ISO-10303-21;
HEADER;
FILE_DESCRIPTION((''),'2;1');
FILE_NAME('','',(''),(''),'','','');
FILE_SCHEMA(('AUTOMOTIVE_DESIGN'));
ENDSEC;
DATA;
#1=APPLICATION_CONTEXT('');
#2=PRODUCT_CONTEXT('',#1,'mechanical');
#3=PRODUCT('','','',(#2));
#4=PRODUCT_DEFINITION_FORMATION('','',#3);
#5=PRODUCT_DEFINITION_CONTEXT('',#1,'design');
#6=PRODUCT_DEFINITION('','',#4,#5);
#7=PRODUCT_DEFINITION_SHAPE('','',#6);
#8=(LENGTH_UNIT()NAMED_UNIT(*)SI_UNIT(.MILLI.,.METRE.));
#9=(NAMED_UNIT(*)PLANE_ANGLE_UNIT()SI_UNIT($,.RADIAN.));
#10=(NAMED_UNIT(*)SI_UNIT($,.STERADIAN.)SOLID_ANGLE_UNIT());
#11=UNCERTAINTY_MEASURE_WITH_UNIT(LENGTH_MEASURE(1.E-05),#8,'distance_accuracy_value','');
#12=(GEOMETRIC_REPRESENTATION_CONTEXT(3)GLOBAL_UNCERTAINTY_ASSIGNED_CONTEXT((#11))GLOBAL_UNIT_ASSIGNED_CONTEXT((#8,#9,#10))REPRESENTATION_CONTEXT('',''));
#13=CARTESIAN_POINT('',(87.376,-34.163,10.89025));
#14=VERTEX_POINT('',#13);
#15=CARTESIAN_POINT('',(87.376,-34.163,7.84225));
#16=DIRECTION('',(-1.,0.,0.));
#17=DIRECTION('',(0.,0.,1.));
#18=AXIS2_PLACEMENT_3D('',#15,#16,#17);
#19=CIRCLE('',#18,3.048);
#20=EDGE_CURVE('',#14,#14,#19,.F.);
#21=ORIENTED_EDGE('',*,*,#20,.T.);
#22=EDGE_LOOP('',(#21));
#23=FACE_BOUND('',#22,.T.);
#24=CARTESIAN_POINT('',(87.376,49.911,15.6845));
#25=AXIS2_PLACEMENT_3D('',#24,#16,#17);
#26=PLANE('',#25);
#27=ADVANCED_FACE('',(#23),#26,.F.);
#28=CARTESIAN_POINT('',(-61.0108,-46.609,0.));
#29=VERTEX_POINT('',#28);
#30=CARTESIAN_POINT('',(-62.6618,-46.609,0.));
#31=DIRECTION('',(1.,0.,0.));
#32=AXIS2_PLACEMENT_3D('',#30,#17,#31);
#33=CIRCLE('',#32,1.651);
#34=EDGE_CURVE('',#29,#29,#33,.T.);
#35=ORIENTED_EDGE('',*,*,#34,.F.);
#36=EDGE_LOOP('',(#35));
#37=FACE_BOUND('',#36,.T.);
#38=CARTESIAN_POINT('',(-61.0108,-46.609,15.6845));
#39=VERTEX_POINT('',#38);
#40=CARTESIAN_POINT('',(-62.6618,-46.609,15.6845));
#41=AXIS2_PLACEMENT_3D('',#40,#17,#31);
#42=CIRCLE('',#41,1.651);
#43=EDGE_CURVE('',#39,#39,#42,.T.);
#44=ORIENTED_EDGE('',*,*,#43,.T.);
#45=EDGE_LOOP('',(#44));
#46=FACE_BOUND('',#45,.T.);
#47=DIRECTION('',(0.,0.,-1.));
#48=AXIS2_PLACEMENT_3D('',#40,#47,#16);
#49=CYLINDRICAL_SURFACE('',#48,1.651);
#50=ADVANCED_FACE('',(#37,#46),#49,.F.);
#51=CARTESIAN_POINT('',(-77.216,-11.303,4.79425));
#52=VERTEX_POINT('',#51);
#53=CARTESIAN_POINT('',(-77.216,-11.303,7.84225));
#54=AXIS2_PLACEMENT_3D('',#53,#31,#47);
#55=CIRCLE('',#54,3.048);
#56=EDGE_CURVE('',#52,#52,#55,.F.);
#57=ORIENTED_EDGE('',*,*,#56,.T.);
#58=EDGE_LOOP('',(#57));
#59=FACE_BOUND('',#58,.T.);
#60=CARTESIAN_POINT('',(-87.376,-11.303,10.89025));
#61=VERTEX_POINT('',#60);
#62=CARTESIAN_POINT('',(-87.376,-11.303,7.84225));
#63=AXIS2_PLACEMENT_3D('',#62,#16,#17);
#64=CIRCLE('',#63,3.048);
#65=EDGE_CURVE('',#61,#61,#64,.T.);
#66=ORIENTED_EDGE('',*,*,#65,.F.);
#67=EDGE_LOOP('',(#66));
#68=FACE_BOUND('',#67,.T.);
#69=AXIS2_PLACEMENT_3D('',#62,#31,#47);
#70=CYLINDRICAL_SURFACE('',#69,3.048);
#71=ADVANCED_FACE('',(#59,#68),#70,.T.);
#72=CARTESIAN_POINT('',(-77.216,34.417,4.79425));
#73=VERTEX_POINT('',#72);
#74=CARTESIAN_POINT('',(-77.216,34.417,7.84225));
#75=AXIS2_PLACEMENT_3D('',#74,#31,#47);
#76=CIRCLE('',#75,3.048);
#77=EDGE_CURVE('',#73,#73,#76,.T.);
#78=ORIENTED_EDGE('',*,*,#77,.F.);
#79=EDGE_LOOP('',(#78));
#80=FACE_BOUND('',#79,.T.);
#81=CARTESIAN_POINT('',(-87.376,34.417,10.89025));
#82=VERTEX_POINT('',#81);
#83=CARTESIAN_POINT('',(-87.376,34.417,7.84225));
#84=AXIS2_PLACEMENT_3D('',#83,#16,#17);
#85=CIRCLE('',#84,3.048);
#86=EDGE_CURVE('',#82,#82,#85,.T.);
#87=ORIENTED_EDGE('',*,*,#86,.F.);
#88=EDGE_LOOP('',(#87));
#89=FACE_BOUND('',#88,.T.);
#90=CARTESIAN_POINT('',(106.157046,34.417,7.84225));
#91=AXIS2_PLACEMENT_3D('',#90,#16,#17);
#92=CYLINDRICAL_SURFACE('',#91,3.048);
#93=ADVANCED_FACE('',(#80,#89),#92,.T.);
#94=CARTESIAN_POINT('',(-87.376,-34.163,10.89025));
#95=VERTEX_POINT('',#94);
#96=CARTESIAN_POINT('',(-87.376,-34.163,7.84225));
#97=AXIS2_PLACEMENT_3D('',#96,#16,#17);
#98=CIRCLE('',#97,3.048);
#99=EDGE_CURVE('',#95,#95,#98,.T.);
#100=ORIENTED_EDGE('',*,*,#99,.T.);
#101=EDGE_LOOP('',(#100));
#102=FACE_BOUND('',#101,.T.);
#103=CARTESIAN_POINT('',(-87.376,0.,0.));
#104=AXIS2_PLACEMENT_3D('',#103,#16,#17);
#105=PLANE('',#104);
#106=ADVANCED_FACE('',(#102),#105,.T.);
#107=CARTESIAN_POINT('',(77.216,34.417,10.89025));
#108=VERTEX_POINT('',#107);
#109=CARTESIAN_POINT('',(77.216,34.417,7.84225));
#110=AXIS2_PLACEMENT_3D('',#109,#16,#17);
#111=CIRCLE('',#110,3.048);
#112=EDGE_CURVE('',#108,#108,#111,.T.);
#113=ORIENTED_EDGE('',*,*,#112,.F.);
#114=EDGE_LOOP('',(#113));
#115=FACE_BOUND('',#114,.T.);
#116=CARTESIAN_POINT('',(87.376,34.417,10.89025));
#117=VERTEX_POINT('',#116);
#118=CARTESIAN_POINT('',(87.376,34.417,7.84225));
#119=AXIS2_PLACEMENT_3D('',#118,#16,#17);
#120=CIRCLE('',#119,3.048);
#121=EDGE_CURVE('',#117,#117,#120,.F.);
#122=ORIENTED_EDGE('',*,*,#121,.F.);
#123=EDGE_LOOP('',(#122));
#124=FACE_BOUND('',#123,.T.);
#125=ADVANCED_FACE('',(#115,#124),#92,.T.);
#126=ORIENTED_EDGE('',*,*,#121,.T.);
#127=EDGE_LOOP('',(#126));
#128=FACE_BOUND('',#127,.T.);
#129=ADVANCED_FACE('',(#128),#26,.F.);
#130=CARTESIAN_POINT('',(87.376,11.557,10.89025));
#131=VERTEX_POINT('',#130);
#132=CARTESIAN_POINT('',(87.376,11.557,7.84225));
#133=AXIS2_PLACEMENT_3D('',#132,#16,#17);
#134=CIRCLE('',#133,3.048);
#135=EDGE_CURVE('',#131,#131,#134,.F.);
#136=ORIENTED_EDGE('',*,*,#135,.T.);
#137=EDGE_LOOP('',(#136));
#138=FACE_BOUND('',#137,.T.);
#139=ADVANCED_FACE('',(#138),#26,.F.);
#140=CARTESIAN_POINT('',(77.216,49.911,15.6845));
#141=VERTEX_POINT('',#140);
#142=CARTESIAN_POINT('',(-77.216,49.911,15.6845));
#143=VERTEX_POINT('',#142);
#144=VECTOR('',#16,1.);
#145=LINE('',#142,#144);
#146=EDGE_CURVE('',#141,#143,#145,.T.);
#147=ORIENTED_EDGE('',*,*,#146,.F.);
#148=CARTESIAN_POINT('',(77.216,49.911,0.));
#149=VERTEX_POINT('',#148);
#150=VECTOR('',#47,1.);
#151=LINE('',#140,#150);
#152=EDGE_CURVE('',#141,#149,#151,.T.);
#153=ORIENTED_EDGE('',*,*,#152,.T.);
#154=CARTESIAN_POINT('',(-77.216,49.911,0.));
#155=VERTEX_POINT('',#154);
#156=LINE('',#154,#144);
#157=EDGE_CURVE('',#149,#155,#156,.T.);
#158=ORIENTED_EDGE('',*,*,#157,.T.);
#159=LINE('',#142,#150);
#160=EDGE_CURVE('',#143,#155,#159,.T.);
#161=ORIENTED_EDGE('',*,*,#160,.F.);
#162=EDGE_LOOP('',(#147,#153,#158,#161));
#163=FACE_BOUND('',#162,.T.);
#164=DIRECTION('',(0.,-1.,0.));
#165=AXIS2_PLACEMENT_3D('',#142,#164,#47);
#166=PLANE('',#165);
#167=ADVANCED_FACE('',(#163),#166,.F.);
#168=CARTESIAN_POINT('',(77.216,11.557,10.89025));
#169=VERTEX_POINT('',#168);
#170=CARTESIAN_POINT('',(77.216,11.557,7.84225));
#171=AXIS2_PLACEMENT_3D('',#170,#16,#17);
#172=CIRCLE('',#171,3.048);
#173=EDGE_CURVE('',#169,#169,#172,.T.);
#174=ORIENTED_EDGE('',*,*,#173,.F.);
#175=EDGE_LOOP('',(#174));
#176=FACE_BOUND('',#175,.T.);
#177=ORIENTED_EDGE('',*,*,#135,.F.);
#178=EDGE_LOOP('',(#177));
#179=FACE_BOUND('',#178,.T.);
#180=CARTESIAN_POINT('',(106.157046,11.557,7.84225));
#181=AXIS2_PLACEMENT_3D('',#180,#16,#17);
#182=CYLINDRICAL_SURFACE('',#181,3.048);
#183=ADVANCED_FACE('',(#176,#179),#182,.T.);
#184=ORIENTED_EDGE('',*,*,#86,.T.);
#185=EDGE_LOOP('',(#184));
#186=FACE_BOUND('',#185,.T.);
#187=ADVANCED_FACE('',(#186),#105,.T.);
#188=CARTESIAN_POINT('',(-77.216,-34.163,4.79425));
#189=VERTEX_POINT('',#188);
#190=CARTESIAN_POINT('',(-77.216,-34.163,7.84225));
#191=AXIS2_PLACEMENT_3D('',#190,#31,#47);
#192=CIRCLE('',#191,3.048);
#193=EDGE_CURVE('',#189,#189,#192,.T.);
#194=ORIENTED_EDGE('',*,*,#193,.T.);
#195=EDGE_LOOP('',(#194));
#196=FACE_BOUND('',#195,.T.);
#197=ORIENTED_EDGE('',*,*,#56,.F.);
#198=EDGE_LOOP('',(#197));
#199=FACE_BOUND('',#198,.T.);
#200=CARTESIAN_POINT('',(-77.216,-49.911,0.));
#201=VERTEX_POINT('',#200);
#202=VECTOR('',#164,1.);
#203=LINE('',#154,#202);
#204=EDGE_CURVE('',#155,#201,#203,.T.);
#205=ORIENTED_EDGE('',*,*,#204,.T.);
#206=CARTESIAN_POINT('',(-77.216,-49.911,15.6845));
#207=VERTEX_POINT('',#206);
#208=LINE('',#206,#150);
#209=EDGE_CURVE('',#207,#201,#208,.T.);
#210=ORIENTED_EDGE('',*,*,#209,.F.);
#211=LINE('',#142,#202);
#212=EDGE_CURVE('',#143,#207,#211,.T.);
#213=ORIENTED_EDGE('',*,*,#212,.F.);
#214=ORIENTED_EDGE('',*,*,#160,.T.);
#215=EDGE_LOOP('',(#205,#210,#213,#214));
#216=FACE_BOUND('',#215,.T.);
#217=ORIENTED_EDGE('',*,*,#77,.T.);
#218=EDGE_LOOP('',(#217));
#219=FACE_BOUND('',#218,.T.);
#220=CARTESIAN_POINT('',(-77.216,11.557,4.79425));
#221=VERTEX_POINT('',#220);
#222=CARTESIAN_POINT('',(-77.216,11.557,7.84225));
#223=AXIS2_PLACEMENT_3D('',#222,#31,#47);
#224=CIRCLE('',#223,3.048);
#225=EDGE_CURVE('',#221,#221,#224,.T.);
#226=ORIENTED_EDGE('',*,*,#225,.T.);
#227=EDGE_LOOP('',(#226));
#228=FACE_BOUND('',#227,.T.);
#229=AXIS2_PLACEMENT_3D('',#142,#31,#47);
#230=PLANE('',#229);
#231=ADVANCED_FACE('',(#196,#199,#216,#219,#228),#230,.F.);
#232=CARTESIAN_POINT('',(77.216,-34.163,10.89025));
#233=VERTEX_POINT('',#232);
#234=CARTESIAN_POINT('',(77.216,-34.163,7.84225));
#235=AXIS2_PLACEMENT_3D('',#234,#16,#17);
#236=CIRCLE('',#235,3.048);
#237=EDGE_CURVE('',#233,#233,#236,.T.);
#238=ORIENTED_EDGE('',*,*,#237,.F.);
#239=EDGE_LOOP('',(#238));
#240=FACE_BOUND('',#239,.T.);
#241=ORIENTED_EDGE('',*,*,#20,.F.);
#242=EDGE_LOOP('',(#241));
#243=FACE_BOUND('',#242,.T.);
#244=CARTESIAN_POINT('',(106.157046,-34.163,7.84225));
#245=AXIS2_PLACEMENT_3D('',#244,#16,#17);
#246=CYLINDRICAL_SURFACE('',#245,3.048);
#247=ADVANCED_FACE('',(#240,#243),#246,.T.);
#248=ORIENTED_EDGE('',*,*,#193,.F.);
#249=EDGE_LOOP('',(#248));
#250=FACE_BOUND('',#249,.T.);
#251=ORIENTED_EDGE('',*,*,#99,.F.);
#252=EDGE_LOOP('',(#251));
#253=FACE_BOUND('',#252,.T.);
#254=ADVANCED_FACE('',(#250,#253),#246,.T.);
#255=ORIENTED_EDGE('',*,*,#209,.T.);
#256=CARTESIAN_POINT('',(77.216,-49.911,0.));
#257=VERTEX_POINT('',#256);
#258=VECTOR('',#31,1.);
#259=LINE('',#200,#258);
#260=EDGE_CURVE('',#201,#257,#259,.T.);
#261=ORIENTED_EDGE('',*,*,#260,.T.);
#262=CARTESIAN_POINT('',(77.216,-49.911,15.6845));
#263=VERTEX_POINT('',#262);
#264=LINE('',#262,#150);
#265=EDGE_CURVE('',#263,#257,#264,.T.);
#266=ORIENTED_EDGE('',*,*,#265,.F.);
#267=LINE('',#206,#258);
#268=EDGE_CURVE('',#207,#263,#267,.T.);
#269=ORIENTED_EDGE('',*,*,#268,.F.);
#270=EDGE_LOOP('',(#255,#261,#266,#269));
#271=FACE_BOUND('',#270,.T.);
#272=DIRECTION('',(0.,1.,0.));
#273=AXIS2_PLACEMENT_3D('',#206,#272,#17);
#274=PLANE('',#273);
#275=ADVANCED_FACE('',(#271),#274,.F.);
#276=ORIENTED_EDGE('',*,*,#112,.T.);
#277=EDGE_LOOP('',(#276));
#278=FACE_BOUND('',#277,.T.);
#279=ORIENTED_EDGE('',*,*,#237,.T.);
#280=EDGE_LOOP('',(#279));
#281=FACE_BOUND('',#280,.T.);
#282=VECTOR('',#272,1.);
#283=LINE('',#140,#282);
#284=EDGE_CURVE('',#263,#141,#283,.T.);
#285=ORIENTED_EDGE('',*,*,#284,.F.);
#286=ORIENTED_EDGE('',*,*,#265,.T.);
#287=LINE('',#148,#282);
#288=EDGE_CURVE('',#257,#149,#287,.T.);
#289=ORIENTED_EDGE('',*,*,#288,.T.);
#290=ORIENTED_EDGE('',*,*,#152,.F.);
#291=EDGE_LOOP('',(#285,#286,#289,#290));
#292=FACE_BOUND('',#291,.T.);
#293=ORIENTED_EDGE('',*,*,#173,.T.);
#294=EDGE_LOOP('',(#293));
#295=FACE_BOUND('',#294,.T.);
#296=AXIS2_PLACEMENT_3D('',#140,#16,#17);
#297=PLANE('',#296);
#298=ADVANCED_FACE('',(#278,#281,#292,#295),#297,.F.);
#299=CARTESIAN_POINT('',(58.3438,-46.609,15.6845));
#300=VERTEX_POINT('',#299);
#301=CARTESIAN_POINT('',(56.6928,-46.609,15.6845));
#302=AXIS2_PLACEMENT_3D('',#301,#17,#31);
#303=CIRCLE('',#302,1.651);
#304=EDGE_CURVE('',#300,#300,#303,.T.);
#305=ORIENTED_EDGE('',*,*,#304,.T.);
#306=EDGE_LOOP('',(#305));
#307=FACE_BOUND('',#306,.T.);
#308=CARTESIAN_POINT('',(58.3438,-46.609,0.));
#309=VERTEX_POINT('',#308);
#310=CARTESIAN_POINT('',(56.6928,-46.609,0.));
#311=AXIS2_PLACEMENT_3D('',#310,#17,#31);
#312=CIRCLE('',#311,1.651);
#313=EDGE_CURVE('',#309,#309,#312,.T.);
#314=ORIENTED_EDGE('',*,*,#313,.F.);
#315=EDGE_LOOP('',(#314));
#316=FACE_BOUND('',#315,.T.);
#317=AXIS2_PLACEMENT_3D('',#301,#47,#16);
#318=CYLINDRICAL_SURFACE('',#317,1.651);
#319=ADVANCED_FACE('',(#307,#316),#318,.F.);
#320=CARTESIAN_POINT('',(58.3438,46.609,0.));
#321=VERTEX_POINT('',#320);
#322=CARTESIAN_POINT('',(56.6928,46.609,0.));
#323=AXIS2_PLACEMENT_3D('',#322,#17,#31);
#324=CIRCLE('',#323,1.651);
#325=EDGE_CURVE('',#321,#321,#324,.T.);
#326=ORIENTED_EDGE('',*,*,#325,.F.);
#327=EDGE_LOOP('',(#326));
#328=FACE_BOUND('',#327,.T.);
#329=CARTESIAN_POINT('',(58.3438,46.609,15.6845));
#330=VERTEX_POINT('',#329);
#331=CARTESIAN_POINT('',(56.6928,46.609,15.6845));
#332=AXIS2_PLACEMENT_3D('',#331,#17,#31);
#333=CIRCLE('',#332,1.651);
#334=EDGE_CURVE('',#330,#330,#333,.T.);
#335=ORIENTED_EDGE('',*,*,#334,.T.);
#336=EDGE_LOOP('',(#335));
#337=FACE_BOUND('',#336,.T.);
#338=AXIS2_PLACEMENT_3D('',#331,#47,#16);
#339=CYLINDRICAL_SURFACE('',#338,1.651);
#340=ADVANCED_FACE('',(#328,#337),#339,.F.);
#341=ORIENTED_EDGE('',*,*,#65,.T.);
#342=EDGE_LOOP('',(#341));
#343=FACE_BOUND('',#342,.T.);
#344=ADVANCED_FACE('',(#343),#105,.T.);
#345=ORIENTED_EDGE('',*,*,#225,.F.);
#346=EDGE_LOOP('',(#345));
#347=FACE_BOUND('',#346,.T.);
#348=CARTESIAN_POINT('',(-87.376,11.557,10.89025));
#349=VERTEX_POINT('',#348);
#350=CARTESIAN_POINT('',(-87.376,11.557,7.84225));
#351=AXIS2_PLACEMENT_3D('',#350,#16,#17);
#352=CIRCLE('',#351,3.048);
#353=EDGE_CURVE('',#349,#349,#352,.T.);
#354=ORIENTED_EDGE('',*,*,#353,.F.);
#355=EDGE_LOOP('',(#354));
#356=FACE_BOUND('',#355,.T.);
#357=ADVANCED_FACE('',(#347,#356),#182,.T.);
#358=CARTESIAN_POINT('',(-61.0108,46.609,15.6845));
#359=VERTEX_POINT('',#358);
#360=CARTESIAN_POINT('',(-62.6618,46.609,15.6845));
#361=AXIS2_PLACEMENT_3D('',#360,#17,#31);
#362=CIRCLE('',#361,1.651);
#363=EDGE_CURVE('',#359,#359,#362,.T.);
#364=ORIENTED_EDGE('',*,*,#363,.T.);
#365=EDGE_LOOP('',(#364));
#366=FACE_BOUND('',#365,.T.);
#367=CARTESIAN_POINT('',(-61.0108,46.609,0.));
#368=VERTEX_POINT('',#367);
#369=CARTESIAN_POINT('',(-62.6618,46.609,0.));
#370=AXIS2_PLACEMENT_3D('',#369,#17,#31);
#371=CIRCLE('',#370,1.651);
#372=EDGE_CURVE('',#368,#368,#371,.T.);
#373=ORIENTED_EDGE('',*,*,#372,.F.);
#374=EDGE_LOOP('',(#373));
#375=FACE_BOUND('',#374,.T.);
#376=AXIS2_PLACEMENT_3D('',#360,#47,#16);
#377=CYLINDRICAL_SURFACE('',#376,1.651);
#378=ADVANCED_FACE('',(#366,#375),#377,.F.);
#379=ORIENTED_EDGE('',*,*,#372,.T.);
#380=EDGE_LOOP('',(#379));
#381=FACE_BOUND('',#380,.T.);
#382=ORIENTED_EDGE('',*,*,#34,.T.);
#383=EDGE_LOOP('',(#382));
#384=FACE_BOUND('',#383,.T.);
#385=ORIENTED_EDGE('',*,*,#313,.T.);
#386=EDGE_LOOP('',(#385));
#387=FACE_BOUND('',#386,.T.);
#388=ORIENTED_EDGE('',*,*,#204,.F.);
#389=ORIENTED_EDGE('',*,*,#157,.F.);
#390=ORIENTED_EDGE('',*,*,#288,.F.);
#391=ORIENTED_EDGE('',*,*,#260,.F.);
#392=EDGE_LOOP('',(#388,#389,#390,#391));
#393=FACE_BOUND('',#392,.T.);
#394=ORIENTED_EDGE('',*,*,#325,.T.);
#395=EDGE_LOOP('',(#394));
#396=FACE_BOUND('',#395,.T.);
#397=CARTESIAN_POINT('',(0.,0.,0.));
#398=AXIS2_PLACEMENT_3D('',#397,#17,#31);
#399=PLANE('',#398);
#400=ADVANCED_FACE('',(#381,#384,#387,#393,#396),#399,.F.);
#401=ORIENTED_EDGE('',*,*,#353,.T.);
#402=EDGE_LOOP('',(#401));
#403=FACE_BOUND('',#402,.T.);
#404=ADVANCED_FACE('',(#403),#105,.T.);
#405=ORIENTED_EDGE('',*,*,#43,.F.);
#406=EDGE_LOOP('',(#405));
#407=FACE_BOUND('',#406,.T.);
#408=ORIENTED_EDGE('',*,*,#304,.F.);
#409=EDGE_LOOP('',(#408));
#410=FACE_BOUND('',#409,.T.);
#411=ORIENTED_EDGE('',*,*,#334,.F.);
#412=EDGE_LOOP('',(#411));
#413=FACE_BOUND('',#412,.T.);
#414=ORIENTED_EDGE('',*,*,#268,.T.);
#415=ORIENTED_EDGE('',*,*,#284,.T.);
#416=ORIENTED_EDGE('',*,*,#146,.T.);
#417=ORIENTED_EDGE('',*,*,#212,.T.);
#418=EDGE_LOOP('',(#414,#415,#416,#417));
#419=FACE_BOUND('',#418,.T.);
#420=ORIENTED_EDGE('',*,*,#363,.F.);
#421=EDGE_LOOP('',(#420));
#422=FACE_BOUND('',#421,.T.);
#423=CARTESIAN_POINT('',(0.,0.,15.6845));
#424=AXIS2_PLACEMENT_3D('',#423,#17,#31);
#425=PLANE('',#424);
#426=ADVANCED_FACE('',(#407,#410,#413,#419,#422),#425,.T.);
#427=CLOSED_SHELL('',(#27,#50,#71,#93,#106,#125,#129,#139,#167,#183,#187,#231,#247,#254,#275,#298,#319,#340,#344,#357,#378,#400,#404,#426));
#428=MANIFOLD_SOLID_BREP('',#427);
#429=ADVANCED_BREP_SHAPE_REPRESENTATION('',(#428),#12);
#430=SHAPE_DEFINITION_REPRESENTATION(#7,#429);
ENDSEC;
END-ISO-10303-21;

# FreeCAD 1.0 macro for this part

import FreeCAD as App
import Part
import Sketcher
from FreeCAD import Vector
Q = App.Units.Quantity

doc = App.newDocument("Part")
body = doc.addObject("PartDesign::Body", "Body")

sketch1 = body.newObject("Sketcher::SketchObject", "Sketch")
sketch1.AttachmentSupport = (doc.getObject("XY_Plane"), [""])
sketch1.MapMode = "FlatFace"
sketch1.addGeometry([
    Part.LineSegment(Vector(-77.216, 49.911, 0), Vector(-77.216, -49.911, 0)),
    Part.LineSegment(Vector(-77.216, -49.911, 0), Vector(77.216, -49.911, 0)),
    Part.LineSegment(Vector(77.216, -49.911, 0), Vector(77.216, 49.911, 0)),
    Part.LineSegment(Vector(77.216, 49.911, 0), Vector(-77.216, 49.911, 0)),
], False)
sketch1.addConstraint([
    Sketcher.Constraint("Coincident", 0, 2, 1, 1),
    Sketcher.Constraint("Coincident", 1, 2, 2, 1),
    Sketcher.Constraint("Coincident", 2, 2, 3, 1),
    Sketcher.Constraint("Coincident", 3, 2, 0, 1),
    Sketcher.Constraint("Vertical", 0),
    Sketcher.Constraint("Horizontal", 1),
    Sketcher.Constraint("Vertical", 2),
    Sketcher.Constraint("Horizontal", 3),
    Sketcher.Constraint("Symmetric", 0, 2, 2, 2, -1, 1),
    Sketcher.Constraint("DistanceX", 1, 1, 1, 2, Q("6.08 in")),
    Sketcher.Constraint("DistanceY", 0, 2, 0, 1, Q("3.93 in")),
])
pad1 = body.newObject("PartDesign::Pad", "Pad")
pad1.Profile = sketch1
pad1.Length = Q("0.6175 in")

sketch2 = body.newObject("Sketcher::SketchObject", "Sketch001")
sketch2.AttachmentSupport = (doc.getObject("YZ_Plane"), [""])
sketch2.MapMode = "FlatFace"
sketch2.AttachmentOffset = App.Placement(Vector(0, 0, -3.04 * 25.4), App.Rotation())
sketch2.addGeometry([
    Part.Circle(Vector(34.417, 7.84225, 0), Vector(0, 0, 1), 3.048),
    Part.Circle(Vector(11.557, 7.84225, 0), Vector(0, 0, 1), 3.048),
    Part.Circle(Vector(-34.163, 7.84225, 0), Vector(0, 0, 1), 3.048),
], False)
sketch2.addConstraint([
    Sketcher.Constraint("Equal", 0, 1),
    Sketcher.Constraint("Equal", 1, 2),
    Sketcher.Constraint("Horizontal", 0, 3, 1, 3),
    Sketcher.Constraint("Horizontal", 1, 3, 2, 3),
    Sketcher.Constraint("Diameter", 0, Q("0.24 in")),
    Sketcher.Constraint("DistanceX", 1, 3, 0, 3, Q("0.9 in")),
    Sketcher.Constraint("DistanceX", 2, 3, 1, 3, Q("1.8 in")),
    Sketcher.Constraint("DistanceX", -1, 1, 0, 3, Q("1.355 in")),
    Sketcher.Constraint("DistanceY", -1, 1, 0, 3, 7.84225),
])
pad2 = body.newObject("PartDesign::Pad", "Pad001")
pad2.Profile = sketch2
pad2.Type = "TwoLengths"
pad2.Length = Q("0.4 in")
pad2.Length2 = Q("6.48 in")
pad2.Reversed = True

sketch3 = body.newObject("Sketcher::SketchObject", "Sketch002")
sketch3.AttachmentSupport = (doc.getObject("YZ_Plane"), [""])
sketch3.MapMode = "FlatFace"
sketch3.AttachmentOffset = App.Placement(Vector(0, 0, -3.04 * 25.4), App.Rotation())
sketch3.addGeometry(Part.Circle(Vector(-11.303, 7.84225, 0), Vector(0, 0, 1), 3.048), False)
sketch3.addConstraint([
    Sketcher.Constraint("Diameter", 0, Q("0.24 in")),
    Sketcher.Constraint("DistanceX", 0, 3, -1, 1, Q("0.445 in")),
    Sketcher.Constraint("DistanceY", -1, 1, 0, 3, 7.84225),
])
pad3 = body.newObject("PartDesign::Pad", "Pad002")
pad3.Profile = sketch3
pad3.Length = Q("0.4 in")
pad3.Reversed = True

sketch4 = body.newObject("Sketcher::SketchObject", "Sketch003")
sketch4.AttachmentSupport = (doc.getObject("XY_Plane"), [""])
sketch4.MapMode = "FlatFace"
sketch4.addGeometry([
    Part.Circle(Vector(-62.6618, 46.609, 0), Vector(0, 0, 1), 1.651),
    Part.Circle(Vector(-62.6618, -46.609, 0), Vector(0, 0, 1), 1.651),
    Part.Circle(Vector(56.6928, -46.609, 0), Vector(0, 0, 1), 1.651),
    Part.Circle(Vector(56.6928, 46.609, 0), Vector(0, 0, 1), 1.651),
], False)
sketch4.addConstraint([
    Sketcher.Constraint("Equal", 0, 1),
    Sketcher.Constraint("Equal", 1, 2),
    Sketcher.Constraint("Equal", 2, 3),
    Sketcher.Constraint("Symmetric", 0, 3, 1, 3, -1),
    Sketcher.Constraint("Symmetric", 2, 3, 3, 3, -1),
    Sketcher.Constraint("Horizontal", 1, 3, 2, 3),
    Sketcher.Constraint("Diameter", 0, Q("0.13 in")),
    Sketcher.Constraint("DistanceY", 1, 3, 0, 3, Q("3.67 in")),
    Sketcher.Constraint("DistanceX", 0, 3, -1, 1, Q("2.467 in")),
    Sketcher.Constraint("DistanceX", -1, 1, 2, 3, Q("2.232 in")),
])
pocket1 = body.newObject("PartDesign::Pocket", "Pocket")
pocket1.Profile = sketch4
pocket1.Type = "ThroughAll"
pocket1.Reversed = True

doc.recompute()
